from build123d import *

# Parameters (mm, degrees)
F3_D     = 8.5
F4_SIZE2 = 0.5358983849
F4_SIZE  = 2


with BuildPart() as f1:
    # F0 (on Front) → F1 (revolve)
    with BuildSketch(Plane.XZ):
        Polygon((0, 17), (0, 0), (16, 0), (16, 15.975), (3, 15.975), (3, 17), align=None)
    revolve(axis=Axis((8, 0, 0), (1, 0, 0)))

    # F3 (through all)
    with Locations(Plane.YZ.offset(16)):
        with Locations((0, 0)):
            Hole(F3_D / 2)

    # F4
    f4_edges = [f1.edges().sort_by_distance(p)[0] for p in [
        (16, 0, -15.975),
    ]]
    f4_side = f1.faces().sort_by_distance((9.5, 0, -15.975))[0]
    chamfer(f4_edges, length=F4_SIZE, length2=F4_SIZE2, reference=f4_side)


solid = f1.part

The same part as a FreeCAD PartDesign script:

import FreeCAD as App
import Part
import Sketcher
from FreeCAD import Vector
Q = App.Units.Quantity


def edges_at(feature, points):
    """Names of the edges that pass closest to the given points."""
    edges = feature.Shape.Edges
    near = lambda p: min(range(len(edges)), key=lambda i: edges[i].distToShape(Part.Vertex(*p))[0])
    return sorted({f"Edge{near(p) + 1}" for p in points})


def add_polygon(sketch, points):
    """Adds a closed chain of lines whose ends are joined by coincident constraints."""
    first, n = sketch.GeometryCount, len(points)
    for a, b in zip(points, points[1:] + points[:1]):
        sketch.addGeometry(Part.LineSegment(App.Vector(*a, 0), App.Vector(*b, 0)), False)
    for i in range(n):
        sketch.addConstraint(Sketcher.Constraint("Coincident", first + i, 2, first + (i + 1) % n, 1))

doc = App.newDocument("Part")
body = doc.addObject("PartDesign::Body", "Body")

# Sketch on XZ plane
sketch1 = body.newObject("Sketcher::SketchObject", "Sketch")
sketch1.AttachmentSupport = (doc.getObject("XZ_Plane"), [""])
sketch1.MapMode = "FlatFace"
add_polygon(sketch1, [(0, 17), (0, 0), (16, 0), (16, 16), (3, 16), (3, 17)])  # lines 0-5
sketch1.addConstraint([
    Sketcher.Constraint("Vertical", 0),
    Sketcher.Constraint("Horizontal", 1),
    Sketcher.Constraint("Vertical", 2),
    Sketcher.Constraint("Horizontal", 3),
    Sketcher.Constraint("Vertical", 4),
    Sketcher.Constraint("Horizontal", 5),
    Sketcher.Constraint("Coincident", 0, 2, -1, 1),
    Sketcher.Constraint("DistanceX", 1, 1, 1, 2, Q("16 mm")),
    Sketcher.Constraint("DistanceX", 3, 2, 3, 1, Q("13 mm")),
    Sketcher.Constraint("DistanceY", 0, 2, 0, 1, Q("17 mm")),
    Sketcher.Constraint("DistanceY", 2, 1, 2, 2, Q("15.975 mm")),
])
revolution = body.newObject("PartDesign::Revolution", "Revolution")
revolution.Profile = sketch1
revolution.ReferenceAxis = (sketch1, ["H_Axis"])
revolution.Angle = 360

# Sketch on YZ plane
sketch2 = body.newObject("Sketcher::SketchObject", "Sketch001")
sketch2.AttachmentSupport = (doc.getObject("YZ_Plane"), [""])
sketch2.MapMode = "FlatFace"
sketch2.AttachmentOffset = App.Placement(Vector(0, 0, 16), App.Rotation())
sketch2.addGeometry(Part.Circle(Vector(0, 0, 0), Vector(0, 0, 1), 4.2), False)
sketch2.addConstraint([
    Sketcher.Constraint("Coincident", 0, 3, -1, 1),
    Sketcher.Constraint("Diameter", 0, Q("8.5 mm")),
])
doc.recompute()
hole = body.newObject("PartDesign::Hole", "Hole")
hole.Profile = sketch2
hole.ThreadType = "None"
hole.Diameter = 8.5
hole.DepthType = "ThroughAll"
doc.recompute()

chamfer = body.newObject("PartDesign::Chamfer", "Chamfer")
chamfer.Base = (hole, edges_at(hole, [(16, 0, -15.975)]))
chamfer.ChamferType = "Two distances"
chamfer.Size = 2
chamfer.Size2 = 0.535898
chamfer.FlipDirection = True

doc.recompute()
